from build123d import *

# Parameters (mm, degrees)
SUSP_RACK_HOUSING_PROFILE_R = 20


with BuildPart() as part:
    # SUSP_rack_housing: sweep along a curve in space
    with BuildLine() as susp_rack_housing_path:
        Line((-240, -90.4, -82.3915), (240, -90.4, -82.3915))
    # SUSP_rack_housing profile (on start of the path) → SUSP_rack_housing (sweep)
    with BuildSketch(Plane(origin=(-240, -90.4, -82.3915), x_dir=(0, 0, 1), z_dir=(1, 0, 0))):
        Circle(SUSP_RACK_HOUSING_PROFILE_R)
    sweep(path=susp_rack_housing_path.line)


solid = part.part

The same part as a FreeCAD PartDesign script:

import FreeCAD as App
import Part
import Sketcher
from FreeCAD import Vector

doc = App.newDocument("Part")
body = doc.addObject("PartDesign::Body", "Body")

sketch1 = body.newObject("Sketcher::SketchObject", "Sketch")
sketch1.AttachmentSupport = (doc.getObject("YZ_Plane"), [""])
sketch1.MapMode = "FlatFace"
sketch1.AttachmentOffset = App.Placement(Vector(0, 0, -240), App.Rotation())
sketch1.addGeometry(Part.Circle(Vector(-90, -82, 0), Vector(0, 0, 1), 20), False)
sketch1.addConstraint(Sketcher.Constraint("Diameter", 0, 40.0))
sketch1.addConstraint(Sketcher.Constraint("DistanceX", 0, 3, -1, 1, 90.4))
sketch1.addConstraint(Sketcher.Constraint("DistanceY", 0, 3, -1, 1, 82.3915))

sketch2 = body.newObject("Sketcher::SketchObject", "Sketch001")
sketch2.AttachmentSupport = (doc.getObject("XY_Plane"), [""])
sketch2.MapMode = "FlatFace"
sketch2.AttachmentOffset = App.Placement(Vector(0, 0, -82.3915), App.Rotation())
sketch2.addGeometry(Part.LineSegment(Vector(-240, -90, 0), Vector(240, -90, 0)), False)
sketch2.addConstraint(Sketcher.Constraint("Horizontal", 0))
sketch2.addConstraint(Sketcher.Constraint("DistanceX", 0, 1, 0, 2, 480.0))
sketch2.addConstraint(Sketcher.Constraint("DistanceX", 0, 1, -1, 1, 240.0))
sketch2.addConstraint(Sketcher.Constraint("DistanceY", 0, 1, -1, 1, 90.4))
doc.recompute()

additivepipe = body.newObject("PartDesign::AdditivePipe", "AdditivePipe")
additivepipe.Profile = sketch1
additivepipe.Spine = (sketch2, ["Edge1"])

doc.recompute()
